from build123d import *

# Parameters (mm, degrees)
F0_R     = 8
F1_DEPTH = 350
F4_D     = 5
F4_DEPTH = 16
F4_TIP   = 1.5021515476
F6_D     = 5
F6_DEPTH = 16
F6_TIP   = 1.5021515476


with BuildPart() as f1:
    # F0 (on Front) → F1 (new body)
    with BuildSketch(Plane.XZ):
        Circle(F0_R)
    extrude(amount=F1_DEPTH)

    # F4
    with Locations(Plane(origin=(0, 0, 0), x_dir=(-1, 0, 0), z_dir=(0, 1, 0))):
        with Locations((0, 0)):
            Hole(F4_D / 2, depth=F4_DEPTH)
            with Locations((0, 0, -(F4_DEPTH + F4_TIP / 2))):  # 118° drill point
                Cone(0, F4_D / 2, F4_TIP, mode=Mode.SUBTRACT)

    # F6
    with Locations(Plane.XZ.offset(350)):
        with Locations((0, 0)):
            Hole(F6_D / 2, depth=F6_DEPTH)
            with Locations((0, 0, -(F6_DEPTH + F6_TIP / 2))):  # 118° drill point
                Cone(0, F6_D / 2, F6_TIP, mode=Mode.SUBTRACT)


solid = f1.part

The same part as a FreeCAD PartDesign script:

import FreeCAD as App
import Part
import Sketcher

doc = App.newDocument("Part")
body = doc.addObject("PartDesign::Body", "Body")

sketch1 = body.newObject("Sketcher::SketchObject", "Sketch")
sketch1.AttachmentSupport = (doc.getObject("XZ_Plane"), [""])
sketch1.MapMode = "FlatFace"
sketch1.addGeometry(Part.Circle(App.Vector(0, 0, 0), App.Vector(0, 0, 1), 8), False)
sketch1.addConstraint([
    Sketcher.Constraint("Coincident", 0, 3, -1, 1),
    Sketcher.Constraint("Diameter", 0, 16.0),
])
pad1 = body.newObject("PartDesign::Pad", "Pad")
pad1.Profile = sketch1
pad1.Length = 350

sketch2 = body.newObject("Sketcher::SketchObject", "Sketch001")
sketch2.AttachmentSupport = (doc.getObject("XZ_Plane"), [""])
sketch2.MapMode = "FlatFace"
sketch2.addGeometry(Part.Circle(App.Vector(0, 0, 0), App.Vector(0, 0, 1), 2.5), False)
sketch2.addConstraint([
    Sketcher.Constraint("Coincident", 0, 3, -1, 1),
    Sketcher.Constraint("Diameter", 0, 5.0),
])
doc.recompute()
hole = body.newObject("PartDesign::Hole", "Hole")
hole.Profile = sketch2
hole.ThreadType = "None"
hole.Diameter = 5
hole.DepthType = "Dimension"
hole.Depth = 16
hole.DrillPoint = "Angled"
hole.DrillPointAngle = 118
hole.Reversed = True

sketch3 = body.newObject("Sketcher::SketchObject", "Sketch002")
sketch3.AttachmentSupport = (doc.getObject("XZ_Plane"), [""])
sketch3.MapMode = "FlatFace"
sketch3.AttachmentOffset = App.Placement(App.Vector(0, 0, 350), App.Rotation())
sketch3.addGeometry(Part.Circle(App.Vector(0, 0, 0), App.Vector(0, 0, 1), 2.5), False)
sketch3.addConstraint([
    Sketcher.Constraint("Coincident", 0, 3, -1, 1),
    Sketcher.Constraint("Diameter", 0, 5.0),
])
doc.recompute()
hole2 = body.newObject("PartDesign::Hole", "Hole001")
hole2.Profile = sketch3
hole2.ThreadType = "None"
hole2.Diameter = 5
hole2.DepthType = "Dimension"
hole2.Depth = 16
hole2.DrillPoint = "Angled"
hole2.DrillPointAngle = 118

doc.recompute()
